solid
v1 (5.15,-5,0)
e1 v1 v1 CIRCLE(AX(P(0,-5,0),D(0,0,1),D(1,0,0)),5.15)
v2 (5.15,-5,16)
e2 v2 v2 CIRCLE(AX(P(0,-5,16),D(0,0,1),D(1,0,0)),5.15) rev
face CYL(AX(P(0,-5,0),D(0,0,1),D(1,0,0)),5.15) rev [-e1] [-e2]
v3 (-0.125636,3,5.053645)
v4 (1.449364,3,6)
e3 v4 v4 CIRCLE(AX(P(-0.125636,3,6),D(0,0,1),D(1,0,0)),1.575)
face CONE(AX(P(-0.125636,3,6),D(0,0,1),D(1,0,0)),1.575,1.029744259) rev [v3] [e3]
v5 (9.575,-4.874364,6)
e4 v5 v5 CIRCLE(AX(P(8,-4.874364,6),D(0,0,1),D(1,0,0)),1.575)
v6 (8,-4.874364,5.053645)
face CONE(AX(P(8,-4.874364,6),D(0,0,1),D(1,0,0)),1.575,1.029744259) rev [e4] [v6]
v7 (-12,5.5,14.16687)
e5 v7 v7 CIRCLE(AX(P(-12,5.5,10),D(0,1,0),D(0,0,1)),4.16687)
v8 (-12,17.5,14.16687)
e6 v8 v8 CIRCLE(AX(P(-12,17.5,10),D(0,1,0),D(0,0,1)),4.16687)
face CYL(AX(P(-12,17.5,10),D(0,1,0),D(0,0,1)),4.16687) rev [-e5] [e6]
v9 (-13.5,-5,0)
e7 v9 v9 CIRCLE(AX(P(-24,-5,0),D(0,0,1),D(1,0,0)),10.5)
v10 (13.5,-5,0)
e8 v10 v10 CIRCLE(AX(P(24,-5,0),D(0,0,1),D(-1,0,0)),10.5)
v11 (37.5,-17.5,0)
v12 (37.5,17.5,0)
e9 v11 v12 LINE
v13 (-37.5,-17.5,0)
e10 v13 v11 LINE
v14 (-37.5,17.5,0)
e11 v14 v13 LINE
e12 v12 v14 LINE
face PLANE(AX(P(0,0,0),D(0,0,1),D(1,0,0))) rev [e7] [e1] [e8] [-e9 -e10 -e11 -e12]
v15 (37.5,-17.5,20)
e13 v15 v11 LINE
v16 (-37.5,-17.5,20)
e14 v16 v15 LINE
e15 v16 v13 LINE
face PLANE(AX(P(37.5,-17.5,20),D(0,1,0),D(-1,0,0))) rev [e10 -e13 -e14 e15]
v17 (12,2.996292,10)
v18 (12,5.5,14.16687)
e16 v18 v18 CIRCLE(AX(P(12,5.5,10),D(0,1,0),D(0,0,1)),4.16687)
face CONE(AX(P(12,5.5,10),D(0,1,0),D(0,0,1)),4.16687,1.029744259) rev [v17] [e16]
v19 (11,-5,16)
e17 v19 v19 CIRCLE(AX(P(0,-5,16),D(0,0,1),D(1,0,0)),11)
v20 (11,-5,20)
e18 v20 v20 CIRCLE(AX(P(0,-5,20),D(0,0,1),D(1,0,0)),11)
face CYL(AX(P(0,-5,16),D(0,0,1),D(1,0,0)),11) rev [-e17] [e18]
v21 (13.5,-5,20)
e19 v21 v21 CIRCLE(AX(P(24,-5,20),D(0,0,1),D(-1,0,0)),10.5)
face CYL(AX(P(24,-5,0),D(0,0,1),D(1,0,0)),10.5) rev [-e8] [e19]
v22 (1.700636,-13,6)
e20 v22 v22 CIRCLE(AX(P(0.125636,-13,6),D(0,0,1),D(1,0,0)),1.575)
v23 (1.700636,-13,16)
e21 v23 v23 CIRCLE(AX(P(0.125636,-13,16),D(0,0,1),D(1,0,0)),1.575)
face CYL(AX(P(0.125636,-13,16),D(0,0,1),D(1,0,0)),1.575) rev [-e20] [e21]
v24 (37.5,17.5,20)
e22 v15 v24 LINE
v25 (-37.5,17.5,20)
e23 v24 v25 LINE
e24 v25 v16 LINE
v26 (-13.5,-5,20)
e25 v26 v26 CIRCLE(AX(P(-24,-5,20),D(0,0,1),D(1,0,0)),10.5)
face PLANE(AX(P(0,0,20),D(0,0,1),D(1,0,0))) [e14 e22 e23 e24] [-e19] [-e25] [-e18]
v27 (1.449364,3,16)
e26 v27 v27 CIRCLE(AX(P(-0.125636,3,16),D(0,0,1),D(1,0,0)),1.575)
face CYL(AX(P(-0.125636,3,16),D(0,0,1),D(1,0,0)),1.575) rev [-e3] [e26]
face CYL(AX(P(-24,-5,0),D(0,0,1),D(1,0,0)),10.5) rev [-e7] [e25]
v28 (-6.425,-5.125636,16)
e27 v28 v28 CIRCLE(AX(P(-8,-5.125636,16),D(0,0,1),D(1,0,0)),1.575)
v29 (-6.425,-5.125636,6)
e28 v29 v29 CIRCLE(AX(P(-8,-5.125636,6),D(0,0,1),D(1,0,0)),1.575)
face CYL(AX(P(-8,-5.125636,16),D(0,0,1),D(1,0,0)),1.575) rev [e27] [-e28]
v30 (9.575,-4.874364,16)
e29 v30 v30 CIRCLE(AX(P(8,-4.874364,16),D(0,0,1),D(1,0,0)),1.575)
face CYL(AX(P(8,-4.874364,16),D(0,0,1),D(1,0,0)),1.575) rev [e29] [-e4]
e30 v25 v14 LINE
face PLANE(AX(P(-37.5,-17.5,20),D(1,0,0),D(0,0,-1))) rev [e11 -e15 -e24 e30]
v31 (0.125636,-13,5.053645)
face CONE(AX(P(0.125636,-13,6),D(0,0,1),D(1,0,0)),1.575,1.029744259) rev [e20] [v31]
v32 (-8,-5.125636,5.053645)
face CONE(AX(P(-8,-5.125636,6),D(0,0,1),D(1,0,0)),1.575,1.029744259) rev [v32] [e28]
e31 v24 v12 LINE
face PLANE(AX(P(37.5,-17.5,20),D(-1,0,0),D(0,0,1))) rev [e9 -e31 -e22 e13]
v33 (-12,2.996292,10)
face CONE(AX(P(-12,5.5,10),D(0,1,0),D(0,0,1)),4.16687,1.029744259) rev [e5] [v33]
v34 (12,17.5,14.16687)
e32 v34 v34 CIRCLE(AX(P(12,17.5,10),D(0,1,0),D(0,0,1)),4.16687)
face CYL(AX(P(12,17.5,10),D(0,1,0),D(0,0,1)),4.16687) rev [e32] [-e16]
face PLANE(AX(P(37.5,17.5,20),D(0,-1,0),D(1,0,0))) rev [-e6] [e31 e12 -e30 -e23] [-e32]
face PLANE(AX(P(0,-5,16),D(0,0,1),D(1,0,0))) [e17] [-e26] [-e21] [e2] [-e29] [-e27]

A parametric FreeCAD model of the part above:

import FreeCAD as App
import Part
import Sketcher

V = App.Vector
Q = App.Units.Quantity

doc = App.newDocument("Part")
body = doc.addObject("PartDesign::Body", "Body")

# Sketch on XY plane
sketch1 = body.newObject("Sketcher::SketchObject", "Sketch")
sketch1.AttachmentSupport = (doc.getObject("XY_Plane"), [""])
sketch1.MapMode = "FlatFace"
sketch1.addGeometry(Part.LineSegment(V(-37.5, 17.5, 0), V(-37.5, -17.5, 0)), False)
sketch1.addGeometry(Part.LineSegment(V(-37.5, -17.5, 0), V(37.5, -17.5, 0)), False)
sketch1.addGeometry(Part.LineSegment(V(37.5, -17.5, 0), V(37.5, 17.5, 0)), False)
sketch1.addGeometry(Part.LineSegment(V(37.5, 17.5, 0), V(-37.5, 17.5, 0)), False)
sketch1.addConstraint(Sketcher.Constraint("Coincident", 0, 2, 1, 1))
sketch1.addConstraint(Sketcher.Constraint("Coincident", 1, 2, 2, 1))
sketch1.addConstraint(Sketcher.Constraint("Coincident", 2, 2, 3, 1))
sketch1.addConstraint(Sketcher.Constraint("Coincident", 3, 2, 0, 1))
sketch1.addConstraint(Sketcher.Constraint("Vertical", 0))
sketch1.addConstraint(Sketcher.Constraint("Horizontal", 1))
sketch1.addConstraint(Sketcher.Constraint("Vertical", 2))
sketch1.addConstraint(Sketcher.Constraint("Horizontal", 3))
sketch1.addConstraint(Sketcher.Constraint("Symmetric", 0, 2, 2, 2, -1, 1))
sketch1.addConstraint(Sketcher.Constraint("DistanceX", 1, 1, 1, 2, Q("75 mm")))
sketch1.addConstraint(Sketcher.Constraint("DistanceY", 0, 2, 0, 1, Q("35 mm")))
pad1 = body.newObject("PartDesign::Pad", "Pad")
pad1.Profile = sketch1
pad1.Length = 20

# Sketch on XY plane
sketch2 = body.newObject("Sketcher::SketchObject", "Sketch001")
sketch2.AttachmentSupport = (doc.getObject("XY_Plane"), [""])
sketch2.MapMode = "FlatFace"
sketch2.AttachmentOffset = App.Placement(V(0, 0, 20), App.Rotation())
sketch2.addGeometry(Part.Circle(V(-24, -5, 0), V(0, 0, 1), 10.5), False)
sketch2.addGeometry(Part.Circle(V(0, -5, 0), V(0, 0, 1), 5.15), False)
sketch2.addGeometry(Part.Circle(V(24, -5, 0), V(0, 0, 1), 10.5), False)
sketch2.addConstraint(Sketcher.Constraint("Equal", 0, 2))
sketch2.addConstraint(Sketcher.Constraint("Symmetric", 0, 3, 2, 3, -2))
sketch2.addConstraint(Sketcher.Constraint("PointOnObject", 1, 3, -2))
sketch2.addConstraint(Sketcher.Constraint("Horizontal", 0, 3, 1, 3))
sketch2.addConstraint(Sketcher.Constraint("Diameter", 0, Q("21 mm")))
sketch2.addConstraint(Sketcher.Constraint("Diameter", 1, Q("10.3 mm")))
sketch2.addConstraint(Sketcher.Constraint("DistanceX", 0, 3, -1, 1, Q("24 mm")))
sketch2.addConstraint(Sketcher.Constraint("DistanceY", 0, 3, -1, 1, Q("5 mm")))
pocket1 = body.newObject("PartDesign::Pocket", "Pocket")
pocket1.Profile = sketch2
pocket1.Type = "ThroughAll"

# Sketch on XY plane
sketch3 = body.newObject("Sketcher::SketchObject", "Sketch002")
sketch3.AttachmentSupport = (doc.getObject("XY_Plane"), [""])
sketch3.MapMode = "FlatFace"
sketch3.AttachmentOffset = App.Placement(V(0, 0, 20), App.Rotation())
sketch3.addGeometry(Part.Circle(V(0, -5, 0), V(0, 0, 1), 11), False)
sketch3.addConstraint(Sketcher.Constraint("PointOnObject", 0, 3, -2))
sketch3.addConstraint(Sketcher.Constraint("Diameter", 0, Q("22 mm")))
sketch3.addConstraint(Sketcher.Constraint("DistanceY", 0, 3, -1, 1, Q("5 mm")))
pocket2 = body.newObject("PartDesign::Pocket", "Pocket001")
pocket2.Profile = sketch3
pocket2.Length = 4

# Sketch on XY plane
sketch4 = body.newObject("Sketcher::SketchObject", "Sketch003")
sketch4.AttachmentSupport = (doc.getObject("XY_Plane"), [""])
sketch4.MapMode = "FlatFace"
sketch4.AttachmentOffset = App.Placement(V(0, 0, 16), App.Rotation())
sketch4.addGeometry(Part.Circle(V(-8, -5.125636, 0), V(0, 0, 1), 1.575), False)
sketch4.addGeometry(Part.Circle(V(-0.125636, 3, 0), V(0, 0, 1), 1.575), False)
sketch4.addGeometry(Part.Circle(V(8, -4.874364, 0), V(0, 0, 1), 1.575), False)
sketch4.addGeometry(Part.Circle(V(0.125636, -13, 0), V(0, 0, 1), 1.575), False)
sketch4.addConstraint(Sketcher.Constraint("Equal", 0, 1))
sketch4.addConstraint(Sketcher.Constraint("Equal", 1, 2))
sketch4.addConstraint(Sketcher.Constraint("Equal", 2, 3))
sketch4.addConstraint(Sketcher.Constraint("Diameter", 0, Q("3.15 mm")))
sketch4.addConstraint(Sketcher.Constraint("DistanceX", 0, 3, -1, 1, Q("8 mm")))
sketch4.addConstraint(Sketcher.Constraint("DistanceY", -1, 1, 1, 3, Q("3 mm")))
sketch4.addConstraint(Sketcher.Constraint("DistanceX", -1, 1, 2, 3, Q("8 mm")))
sketch4.addConstraint(Sketcher.Constraint("DistanceY", 3, 3, -1, 1, Q("13 mm")))
sketch4.addConstraint(Sketcher.Constraint("DistanceY", 0, 3, 2, 3, Q("0.251271 mm")))
sketch4.addConstraint(Sketcher.Constraint("DistanceX", 1, 3, 3, 3, Q("0.251271 mm")))
sketch4.addConstraint(Sketcher.Constraint("DistanceY", 0, 3, -1, 1, Q("5.125636 mm")))
sketch4.addConstraint(Sketcher.Constraint("DistanceX", 1, 3, -1, 1, Q("0.125636 mm")))
doc.recompute()
hole = body.newObject("PartDesign::Hole", "Hole")
hole.Profile = sketch4
hole.ThreadType = "None"
hole.Diameter = 3.15
hole.DepthType = "Dimension"
hole.Depth = 10
hole.DrillPoint = "Angled"
hole.DrillPointAngle = 118

# Sketch on XZ plane
sketch5 = body.newObject("Sketcher::SketchObject", "Sketch004")
sketch5.AttachmentSupport = (doc.getObject("XZ_Plane"), [""])
sketch5.MapMode = "FlatFace"
sketch5.AttachmentOffset = App.Placement(V(0, 0, -17.5), App.Rotation())
sketch5.addGeometry(Part.Circle(V(-12, 10, 0), V(0, 0, 1), 4.16687), False)
sketch5.addGeometry(Part.Circle(V(12, 10, 0), V(0, 0, 1), 4.16687), False)
sketch5.addConstraint(Sketcher.Constraint("Equal", 0, 1))
sketch5.addConstraint(Sketcher.Constraint("Symmetric", 0, 3, 1, 3, -2))
sketch5.addConstraint(Sketcher.Constraint("DistanceX", 0, 3, -1, 1, Q("12 mm")))
sketch5.addConstraint(Sketcher.Constraint("DistanceY", -1, 1, 0, 3, Q("10 mm")))
sketch5.addConstraint(Sketcher.Constraint("Diameter", 0, Q("8.33374 mm")))
doc.recompute()
hole2 = body.newObject("PartDesign::Hole", "Hole001")
hole2.Profile = sketch5
hole2.ThreadType = "None"
hole2.Diameter = 8.33374
hole2.DepthType = "Dimension"
hole2.Depth = 12
hole2.DrillPoint = "Angled"
hole2.DrillPointAngle = 118
hole2.Reversed = True

doc.recompute()
